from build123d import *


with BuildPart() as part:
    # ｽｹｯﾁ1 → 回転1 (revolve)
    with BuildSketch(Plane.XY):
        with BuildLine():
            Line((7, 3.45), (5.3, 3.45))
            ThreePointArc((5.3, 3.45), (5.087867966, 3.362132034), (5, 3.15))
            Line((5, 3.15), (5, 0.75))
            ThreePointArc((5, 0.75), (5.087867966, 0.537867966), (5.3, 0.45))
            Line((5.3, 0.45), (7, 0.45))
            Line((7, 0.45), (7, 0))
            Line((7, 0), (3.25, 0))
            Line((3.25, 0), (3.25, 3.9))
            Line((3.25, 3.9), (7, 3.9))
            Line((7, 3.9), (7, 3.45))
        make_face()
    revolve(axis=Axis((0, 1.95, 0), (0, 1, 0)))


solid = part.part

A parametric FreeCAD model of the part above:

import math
import FreeCAD as App
import Part
import Sketcher
from FreeCAD import Vector
Q = App.Units.Quantity

doc = App.newDocument("Part")
params = doc.addObject("Spreadsheet::Sheet", "Params")
for row, (alias, value) in enumerate([
    ("sketch1_radius", "0.3 mm"),
    ("sketch1_width", "1.7 mm"),
    ("sketch1_height", "3.9 mm"),
    ("sketch1_height2", "2.4 mm"),
    ("sketch1_width2", "3.75 mm"),
    ("revolution_angle", "360 deg"),
], start=1):
    params.set(f"A{row}", alias)
    params.set(f"B{row}", "=" + value)
    params.setAlias(f"B{row}", alias)

body = doc.addObject("PartDesign::Body", "Body")

# Sketch on XY plane
sketch1 = body.newObject("Sketcher::SketchObject", "Sketch")
sketch1.AttachmentSupport = (doc.getObject("XY_Plane"), [""])
sketch1.MapMode = "FlatFace"
sketch1.addGeometry(Part.LineSegment(Vector(5.3, 3.45, 0), Vector(7, 3.45, 0)), False)
sketch1.addGeometry(Part.LineSegment(Vector(7, 3.45, 0), Vector(7, 3.9, 0)), False)
sketch1.addGeometry(Part.LineSegment(Vector(7, 3.9, 0), Vector(3.25, 3.9, 0)), False)
sketch1.addGeometry(Part.LineSegment(Vector(3.25, 3.9, 0), Vector(3.25, 0, 0)), False)
sketch1.addGeometry(Part.LineSegment(Vector(3.25, 0, 0), Vector(7, 0, 0)), False)
sketch1.addGeometry(Part.LineSegment(Vector(7, 0, 0), Vector(7, 0.45, 0)), False)
sketch1.addGeometry(Part.LineSegment(Vector(7, 0.45, 0), Vector(5.3, 0.45, 0)), False)
sketch1.addGeometry(Part.ArcOfCircle(Part.Circle(Vector(5.3, 0.75, 0), Vector(0, 0, 1), 0.3), math.radians(-180), math.radians(-90)), False)
sketch1.addGeometry(Part.LineSegment(Vector(5, 0.75, 0), Vector(5, 3.15, 0)), False)
sketch1.addGeometry(Part.ArcOfCircle(Part.Circle(Vector(5.3, 3.15, 0), Vector(0, 0, 1), 0.3), math.radians(90), math.radians(180)), False)
sketch1.addConstraint(Sketcher.Constraint("Coincident", 0, 2, 1, 1))
sketch1.addConstraint(Sketcher.Constraint("Coincident", 1, 2, 2, 1))
sketch1.addConstraint(Sketcher.Constraint("Coincident", 2, 2, 3, 1))
sketch1.addConstraint(Sketcher.Constraint("Coincident", 3, 2, 4, 1))
sketch1.addConstraint(Sketcher.Constraint("Coincident", 4, 2, 5, 1))
sketch1.addConstraint(Sketcher.Constraint("Coincident", 5, 2, 6, 1))
sketch1.addConstraint(Sketcher.Constraint("Tangent", 6, 2, 7, 2))
sketch1.addConstraint(Sketcher.Constraint("Tangent", 7, 1, 8, 1))
sketch1.addConstraint(Sketcher.Constraint("Tangent", 8, 2, 9, 2))
sketch1.addConstraint(Sketcher.Constraint("Tangent", 9, 1, 0, 1))
sketch1.addConstraint(Sketcher.Constraint("Horizontal", 0))
sketch1.addConstraint(Sketcher.Constraint("Vertical", 1))
sketch1.addConstraint(Sketcher.Constraint("Horizontal", 2))
sketch1.addConstraint(Sketcher.Constraint("Vertical", 3))
sketch1.addConstraint(Sketcher.Constraint("Horizontal", 4))
sketch1.addConstraint(Sketcher.Constraint("Vertical", 5))
sketch1.addConstraint(Sketcher.Constraint("Horizontal", 6))
sketch1.addConstraint(Sketcher.Constraint("Vertical", 8))
sketch1.addConstraint(Sketcher.Constraint("Equal", 7, 9))
sketch1.addConstraint(Sketcher.Constraint("PointOnObject", 3, 2, -1))
sketch1.addConstraint(Sketcher.Constraint("Vertical", 1, 2, 4, 2))
sketch1.addConstraint(Sketcher.Constraint("Equal", 1, 5))
sketch1.addConstraint(Sketcher.Constraint("Radius", 7, Q("0.3 mm")))
sketch1.addConstraint(Sketcher.Constraint("DistanceX", 0, 1, 0, 2, Q("1.7 mm")))
sketch1.addConstraint(Sketcher.Constraint("DistanceY", 3, 2, 3, 1, Q("3.9 mm")))
sketch1.addConstraint(Sketcher.Constraint("DistanceY", 8, 1, 8, 2, Q("2.4 mm")))
sketch1.addConstraint(Sketcher.Constraint("DistanceX", -1, 1, 0, 2, Q("7 mm")))
sketch1.addConstraint(Sketcher.Constraint("DistanceX", 2, 2, 2, 1, Q("3.75 mm")))
sketch1.setExpression("Constraints[22]", "Params.sketch1_radius")
sketch1.setExpression("Constraints[23]", "Params.sketch1_width")
sketch1.setExpression("Constraints[24]", "Params.sketch1_height")
sketch1.setExpression("Constraints[25]", "Params.sketch1_height2")
sketch1.setExpression("Constraints[27]", "Params.sketch1_width2")
revolution = body.newObject("PartDesign::Revolution", "Revolution")
revolution.Profile = sketch1
revolution.ReferenceAxis = (sketch1, ["V_Axis"])
revolution.setExpression("Angle", "Params.revolution_angle")

doc.recompute()
